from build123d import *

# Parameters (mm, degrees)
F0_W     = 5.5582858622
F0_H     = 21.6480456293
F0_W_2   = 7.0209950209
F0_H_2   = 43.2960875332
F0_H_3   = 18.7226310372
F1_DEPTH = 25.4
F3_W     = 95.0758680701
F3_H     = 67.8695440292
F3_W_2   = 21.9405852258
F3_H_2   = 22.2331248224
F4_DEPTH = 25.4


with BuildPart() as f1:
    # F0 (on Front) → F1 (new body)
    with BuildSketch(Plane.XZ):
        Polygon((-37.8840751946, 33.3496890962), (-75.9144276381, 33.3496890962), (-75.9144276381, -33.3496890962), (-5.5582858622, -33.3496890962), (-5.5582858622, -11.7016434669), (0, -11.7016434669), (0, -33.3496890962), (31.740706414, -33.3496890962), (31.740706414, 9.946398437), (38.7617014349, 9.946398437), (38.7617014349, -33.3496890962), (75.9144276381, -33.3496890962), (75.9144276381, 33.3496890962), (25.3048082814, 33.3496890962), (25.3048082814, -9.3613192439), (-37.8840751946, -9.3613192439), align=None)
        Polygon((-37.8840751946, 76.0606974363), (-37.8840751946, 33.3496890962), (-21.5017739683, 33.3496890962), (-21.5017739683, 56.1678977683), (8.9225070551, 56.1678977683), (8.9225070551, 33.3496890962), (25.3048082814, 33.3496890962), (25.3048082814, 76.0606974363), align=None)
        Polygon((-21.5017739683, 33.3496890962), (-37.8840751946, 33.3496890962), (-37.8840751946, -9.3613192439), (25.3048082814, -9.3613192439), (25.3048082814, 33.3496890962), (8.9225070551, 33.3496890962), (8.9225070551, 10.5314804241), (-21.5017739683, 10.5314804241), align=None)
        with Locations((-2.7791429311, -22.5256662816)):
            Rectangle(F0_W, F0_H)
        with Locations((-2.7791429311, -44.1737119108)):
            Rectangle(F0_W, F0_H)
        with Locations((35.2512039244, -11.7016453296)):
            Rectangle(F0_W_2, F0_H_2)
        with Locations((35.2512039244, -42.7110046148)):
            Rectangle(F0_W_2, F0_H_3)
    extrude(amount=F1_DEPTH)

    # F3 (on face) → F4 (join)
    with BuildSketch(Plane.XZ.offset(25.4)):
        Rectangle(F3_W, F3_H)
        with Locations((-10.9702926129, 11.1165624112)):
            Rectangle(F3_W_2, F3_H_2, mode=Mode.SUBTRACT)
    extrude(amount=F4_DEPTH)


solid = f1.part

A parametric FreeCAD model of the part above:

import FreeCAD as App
import Part
import Sketcher

V = App.Vector
Q = App.Units.Quantity


def add_polygon(sketch, points):
    """Adds a closed chain of lines whose ends are joined by coincident constraints."""
    first, n = sketch.GeometryCount, len(points)
    for a, b in zip(points, points[1:] + points[:1]):
        sketch.addGeometry(Part.LineSegment(App.Vector(*a, 0), App.Vector(*b, 0)), False)
    for i in range(n):
        sketch.addConstraint(Sketcher.Constraint("Coincident", first + i, 2, first + (i + 1) % n, 1))

doc = App.newDocument("Part")
body = doc.addObject("PartDesign::Body", "Body")

# Sketch on XZ plane
sketch1 = body.newObject("Sketcher::SketchObject", "Sketch")
sketch1.AttachmentSupport = (doc.getObject("XZ_Plane"), [""])
sketch1.MapMode = "FlatFace"
add_polygon(sketch1, [(-38, 33), (-76, 33), (-76, -33), (-6, -33), (-6, -55), (0, -55), (0, -33), (32, -33), (32, -52), (39, -52), (39, -33), (76, -33), (76, 33), (25, 33), (25, 76), (-38, 76)])  # lines 0-15
add_polygon(sketch1, [(9, 11), (-22, 11), (-22, 56), (9, 56)])  # lines 16-19
sketch1.addConstraint(Sketcher.Constraint("Horizontal", 0))
sketch1.addConstraint(Sketcher.Constraint("Vertical", 1))
sketch1.addConstraint(Sketcher.Constraint("Horizontal", 2))
sketch1.addConstraint(Sketcher.Constraint("Vertical", 3))
sketch1.addConstraint(Sketcher.Constraint("Horizontal", 4))
sketch1.addConstraint(Sketcher.Constraint("Vertical", 5))
sketch1.addConstraint(Sketcher.Constraint("Horizontal", 6))
sketch1.addConstraint(Sketcher.Constraint("Vertical", 7))
sketch1.addConstraint(Sketcher.Constraint("Horizontal", 8))
sketch1.addConstraint(Sketcher.Constraint("Vertical", 9))
sketch1.addConstraint(Sketcher.Constraint("Horizontal", 10))
sketch1.addConstraint(Sketcher.Constraint("Vertical", 11))
sketch1.addConstraint(Sketcher.Constraint("Horizontal", 12))
sketch1.addConstraint(Sketcher.Constraint("Vertical", 13))
sketch1.addConstraint(Sketcher.Constraint("Horizontal", 14))
sketch1.addConstraint(Sketcher.Constraint("Vertical", 15))
sketch1.addConstraint(Sketcher.Constraint("Horizontal", 16))
sketch1.addConstraint(Sketcher.Constraint("Vertical", 17))
sketch1.addConstraint(Sketcher.Constraint("Horizontal", 18))
sketch1.addConstraint(Sketcher.Constraint("Vertical", 19))
sketch1.addConstraint(Sketcher.Constraint("Symmetric", 0, 2, 10, 2, -1, 1))
sketch1.addConstraint(Sketcher.Constraint("PointOnObject", 4, 2, -2))
sketch1.addConstraint(Sketcher.Constraint("Horizontal", 2, 2, 5, 2))
sketch1.addConstraint(Sketcher.Constraint("Horizontal", 6, 2, 9, 2))
sketch1.addConstraint(Sketcher.Constraint("Horizontal", 0, 2, 11, 2))
sketch1.addConstraint(Sketcher.Constraint("DistanceX", 2, 1, 2, 2, Q("70.356142 mm")))
sketch1.addConstraint(Sketcher.Constraint("DistanceX", 12, 2, 12, 1, Q("50.609619 mm")))
sketch1.addConstraint(Sketcher.Constraint("DistanceX", 16, 2, 16, 1, Q("30.424281 mm")))
sketch1.addConstraint(Sketcher.Constraint("DistanceY", 1, 2, 1, 1, Q("66.699378 mm")))
sketch1.addConstraint(Sketcher.Constraint("DistanceY", 7, 2, 7, 1, Q("18.722631 mm")))
sketch1.addConstraint(Sketcher.Constraint("DistanceY", 13, 1, 13, 2, Q("42.711008 mm")))
sketch1.addConstraint(Sketcher.Constraint("DistanceX", -1, 1, 8, 2, Q("38.761701 mm")))
sketch1.addConstraint(Sketcher.Constraint("DistanceX", 12, 2, 6, 2, Q("6.435898 mm")))
sketch1.addConstraint(Sketcher.Constraint("DistanceX", 15, 2, 16, 2, Q("16.382301 mm")))
sketch1.addConstraint(Sketcher.Constraint("DistanceY", 17, 2, 14, 2, Q("19.8928 mm")))
sketch1.addConstraint(Sketcher.Constraint("DistanceX", 18, 2, 13, 2, Q("16.382301 mm")))
sketch1.addConstraint(Sketcher.Constraint("DistanceX", 0, 2, 0, 1, Q("38.030352 mm")))
sketch1.addConstraint(Sketcher.Constraint("DistanceY", 3, 2, 3, 1, Q("21.648046 mm")))
sketch1.addConstraint(Sketcher.Constraint("DistanceY", 17, 1, 17, 2, Q("45.636417 mm")))
pad1 = body.newObject("PartDesign::Pad", "Pad")
pad1.Profile = sketch1
pad1.Length = Q("1 in")

# Sketch on XZ plane
sketch2 = body.newObject("Sketcher::SketchObject", "Sketch001")
sketch2.AttachmentSupport = (doc.getObject("XZ_Plane"), [""])
sketch2.MapMode = "FlatFace"
sketch2.AttachmentOffset = App.Placement(V(0, 0, 1 * 25.4), App.Rotation())
add_polygon(sketch2, [(-48, 34), (-48, -34), (48, -34), (48, 34)])  # lines 0-3
add_polygon(sketch2, [(0, 0), (-22, 0), (-22, 22), (0, 22)])  # lines 4-7
sketch2.addConstraint(Sketcher.Constraint("Vertical", 0))
sketch2.addConstraint(Sketcher.Constraint("Horizontal", 1))
sketch2.addConstraint(Sketcher.Constraint("Vertical", 2))
sketch2.addConstraint(Sketcher.Constraint("Horizontal", 3))
sketch2.addConstraint(Sketcher.Constraint("Horizontal", 4))
sketch2.addConstraint(Sketcher.Constraint("Vertical", 5))
sketch2.addConstraint(Sketcher.Constraint("Horizontal", 6))
sketch2.addConstraint(Sketcher.Constraint("Vertical", 7))
sketch2.addConstraint(Sketcher.Constraint("Coincident", 7, 2, -1, 1))
sketch2.addConstraint(Sketcher.Constraint("Symmetric", 0, 2, 2, 2, -1, 1))
sketch2.addConstraint(Sketcher.Constraint("DistanceX", 1, 1, 1, 2, Q("95.075868 mm")))
sketch2.addConstraint(Sketcher.Constraint("DistanceX", 4, 2, 4, 1, Q("21.940585 mm")))
sketch2.addConstraint(Sketcher.Constraint("DistanceY", 0, 2, 0, 1, Q("67.869544 mm")))
sketch2.addConstraint(Sketcher.Constraint("DistanceY", 5, 1, 5, 2, Q("22.233125 mm")))
pad2 = body.newObject("PartDesign::Pad", "Pad001")
pad2.Profile = sketch2
pad2.Length = Q("1 in")

doc.recompute()
